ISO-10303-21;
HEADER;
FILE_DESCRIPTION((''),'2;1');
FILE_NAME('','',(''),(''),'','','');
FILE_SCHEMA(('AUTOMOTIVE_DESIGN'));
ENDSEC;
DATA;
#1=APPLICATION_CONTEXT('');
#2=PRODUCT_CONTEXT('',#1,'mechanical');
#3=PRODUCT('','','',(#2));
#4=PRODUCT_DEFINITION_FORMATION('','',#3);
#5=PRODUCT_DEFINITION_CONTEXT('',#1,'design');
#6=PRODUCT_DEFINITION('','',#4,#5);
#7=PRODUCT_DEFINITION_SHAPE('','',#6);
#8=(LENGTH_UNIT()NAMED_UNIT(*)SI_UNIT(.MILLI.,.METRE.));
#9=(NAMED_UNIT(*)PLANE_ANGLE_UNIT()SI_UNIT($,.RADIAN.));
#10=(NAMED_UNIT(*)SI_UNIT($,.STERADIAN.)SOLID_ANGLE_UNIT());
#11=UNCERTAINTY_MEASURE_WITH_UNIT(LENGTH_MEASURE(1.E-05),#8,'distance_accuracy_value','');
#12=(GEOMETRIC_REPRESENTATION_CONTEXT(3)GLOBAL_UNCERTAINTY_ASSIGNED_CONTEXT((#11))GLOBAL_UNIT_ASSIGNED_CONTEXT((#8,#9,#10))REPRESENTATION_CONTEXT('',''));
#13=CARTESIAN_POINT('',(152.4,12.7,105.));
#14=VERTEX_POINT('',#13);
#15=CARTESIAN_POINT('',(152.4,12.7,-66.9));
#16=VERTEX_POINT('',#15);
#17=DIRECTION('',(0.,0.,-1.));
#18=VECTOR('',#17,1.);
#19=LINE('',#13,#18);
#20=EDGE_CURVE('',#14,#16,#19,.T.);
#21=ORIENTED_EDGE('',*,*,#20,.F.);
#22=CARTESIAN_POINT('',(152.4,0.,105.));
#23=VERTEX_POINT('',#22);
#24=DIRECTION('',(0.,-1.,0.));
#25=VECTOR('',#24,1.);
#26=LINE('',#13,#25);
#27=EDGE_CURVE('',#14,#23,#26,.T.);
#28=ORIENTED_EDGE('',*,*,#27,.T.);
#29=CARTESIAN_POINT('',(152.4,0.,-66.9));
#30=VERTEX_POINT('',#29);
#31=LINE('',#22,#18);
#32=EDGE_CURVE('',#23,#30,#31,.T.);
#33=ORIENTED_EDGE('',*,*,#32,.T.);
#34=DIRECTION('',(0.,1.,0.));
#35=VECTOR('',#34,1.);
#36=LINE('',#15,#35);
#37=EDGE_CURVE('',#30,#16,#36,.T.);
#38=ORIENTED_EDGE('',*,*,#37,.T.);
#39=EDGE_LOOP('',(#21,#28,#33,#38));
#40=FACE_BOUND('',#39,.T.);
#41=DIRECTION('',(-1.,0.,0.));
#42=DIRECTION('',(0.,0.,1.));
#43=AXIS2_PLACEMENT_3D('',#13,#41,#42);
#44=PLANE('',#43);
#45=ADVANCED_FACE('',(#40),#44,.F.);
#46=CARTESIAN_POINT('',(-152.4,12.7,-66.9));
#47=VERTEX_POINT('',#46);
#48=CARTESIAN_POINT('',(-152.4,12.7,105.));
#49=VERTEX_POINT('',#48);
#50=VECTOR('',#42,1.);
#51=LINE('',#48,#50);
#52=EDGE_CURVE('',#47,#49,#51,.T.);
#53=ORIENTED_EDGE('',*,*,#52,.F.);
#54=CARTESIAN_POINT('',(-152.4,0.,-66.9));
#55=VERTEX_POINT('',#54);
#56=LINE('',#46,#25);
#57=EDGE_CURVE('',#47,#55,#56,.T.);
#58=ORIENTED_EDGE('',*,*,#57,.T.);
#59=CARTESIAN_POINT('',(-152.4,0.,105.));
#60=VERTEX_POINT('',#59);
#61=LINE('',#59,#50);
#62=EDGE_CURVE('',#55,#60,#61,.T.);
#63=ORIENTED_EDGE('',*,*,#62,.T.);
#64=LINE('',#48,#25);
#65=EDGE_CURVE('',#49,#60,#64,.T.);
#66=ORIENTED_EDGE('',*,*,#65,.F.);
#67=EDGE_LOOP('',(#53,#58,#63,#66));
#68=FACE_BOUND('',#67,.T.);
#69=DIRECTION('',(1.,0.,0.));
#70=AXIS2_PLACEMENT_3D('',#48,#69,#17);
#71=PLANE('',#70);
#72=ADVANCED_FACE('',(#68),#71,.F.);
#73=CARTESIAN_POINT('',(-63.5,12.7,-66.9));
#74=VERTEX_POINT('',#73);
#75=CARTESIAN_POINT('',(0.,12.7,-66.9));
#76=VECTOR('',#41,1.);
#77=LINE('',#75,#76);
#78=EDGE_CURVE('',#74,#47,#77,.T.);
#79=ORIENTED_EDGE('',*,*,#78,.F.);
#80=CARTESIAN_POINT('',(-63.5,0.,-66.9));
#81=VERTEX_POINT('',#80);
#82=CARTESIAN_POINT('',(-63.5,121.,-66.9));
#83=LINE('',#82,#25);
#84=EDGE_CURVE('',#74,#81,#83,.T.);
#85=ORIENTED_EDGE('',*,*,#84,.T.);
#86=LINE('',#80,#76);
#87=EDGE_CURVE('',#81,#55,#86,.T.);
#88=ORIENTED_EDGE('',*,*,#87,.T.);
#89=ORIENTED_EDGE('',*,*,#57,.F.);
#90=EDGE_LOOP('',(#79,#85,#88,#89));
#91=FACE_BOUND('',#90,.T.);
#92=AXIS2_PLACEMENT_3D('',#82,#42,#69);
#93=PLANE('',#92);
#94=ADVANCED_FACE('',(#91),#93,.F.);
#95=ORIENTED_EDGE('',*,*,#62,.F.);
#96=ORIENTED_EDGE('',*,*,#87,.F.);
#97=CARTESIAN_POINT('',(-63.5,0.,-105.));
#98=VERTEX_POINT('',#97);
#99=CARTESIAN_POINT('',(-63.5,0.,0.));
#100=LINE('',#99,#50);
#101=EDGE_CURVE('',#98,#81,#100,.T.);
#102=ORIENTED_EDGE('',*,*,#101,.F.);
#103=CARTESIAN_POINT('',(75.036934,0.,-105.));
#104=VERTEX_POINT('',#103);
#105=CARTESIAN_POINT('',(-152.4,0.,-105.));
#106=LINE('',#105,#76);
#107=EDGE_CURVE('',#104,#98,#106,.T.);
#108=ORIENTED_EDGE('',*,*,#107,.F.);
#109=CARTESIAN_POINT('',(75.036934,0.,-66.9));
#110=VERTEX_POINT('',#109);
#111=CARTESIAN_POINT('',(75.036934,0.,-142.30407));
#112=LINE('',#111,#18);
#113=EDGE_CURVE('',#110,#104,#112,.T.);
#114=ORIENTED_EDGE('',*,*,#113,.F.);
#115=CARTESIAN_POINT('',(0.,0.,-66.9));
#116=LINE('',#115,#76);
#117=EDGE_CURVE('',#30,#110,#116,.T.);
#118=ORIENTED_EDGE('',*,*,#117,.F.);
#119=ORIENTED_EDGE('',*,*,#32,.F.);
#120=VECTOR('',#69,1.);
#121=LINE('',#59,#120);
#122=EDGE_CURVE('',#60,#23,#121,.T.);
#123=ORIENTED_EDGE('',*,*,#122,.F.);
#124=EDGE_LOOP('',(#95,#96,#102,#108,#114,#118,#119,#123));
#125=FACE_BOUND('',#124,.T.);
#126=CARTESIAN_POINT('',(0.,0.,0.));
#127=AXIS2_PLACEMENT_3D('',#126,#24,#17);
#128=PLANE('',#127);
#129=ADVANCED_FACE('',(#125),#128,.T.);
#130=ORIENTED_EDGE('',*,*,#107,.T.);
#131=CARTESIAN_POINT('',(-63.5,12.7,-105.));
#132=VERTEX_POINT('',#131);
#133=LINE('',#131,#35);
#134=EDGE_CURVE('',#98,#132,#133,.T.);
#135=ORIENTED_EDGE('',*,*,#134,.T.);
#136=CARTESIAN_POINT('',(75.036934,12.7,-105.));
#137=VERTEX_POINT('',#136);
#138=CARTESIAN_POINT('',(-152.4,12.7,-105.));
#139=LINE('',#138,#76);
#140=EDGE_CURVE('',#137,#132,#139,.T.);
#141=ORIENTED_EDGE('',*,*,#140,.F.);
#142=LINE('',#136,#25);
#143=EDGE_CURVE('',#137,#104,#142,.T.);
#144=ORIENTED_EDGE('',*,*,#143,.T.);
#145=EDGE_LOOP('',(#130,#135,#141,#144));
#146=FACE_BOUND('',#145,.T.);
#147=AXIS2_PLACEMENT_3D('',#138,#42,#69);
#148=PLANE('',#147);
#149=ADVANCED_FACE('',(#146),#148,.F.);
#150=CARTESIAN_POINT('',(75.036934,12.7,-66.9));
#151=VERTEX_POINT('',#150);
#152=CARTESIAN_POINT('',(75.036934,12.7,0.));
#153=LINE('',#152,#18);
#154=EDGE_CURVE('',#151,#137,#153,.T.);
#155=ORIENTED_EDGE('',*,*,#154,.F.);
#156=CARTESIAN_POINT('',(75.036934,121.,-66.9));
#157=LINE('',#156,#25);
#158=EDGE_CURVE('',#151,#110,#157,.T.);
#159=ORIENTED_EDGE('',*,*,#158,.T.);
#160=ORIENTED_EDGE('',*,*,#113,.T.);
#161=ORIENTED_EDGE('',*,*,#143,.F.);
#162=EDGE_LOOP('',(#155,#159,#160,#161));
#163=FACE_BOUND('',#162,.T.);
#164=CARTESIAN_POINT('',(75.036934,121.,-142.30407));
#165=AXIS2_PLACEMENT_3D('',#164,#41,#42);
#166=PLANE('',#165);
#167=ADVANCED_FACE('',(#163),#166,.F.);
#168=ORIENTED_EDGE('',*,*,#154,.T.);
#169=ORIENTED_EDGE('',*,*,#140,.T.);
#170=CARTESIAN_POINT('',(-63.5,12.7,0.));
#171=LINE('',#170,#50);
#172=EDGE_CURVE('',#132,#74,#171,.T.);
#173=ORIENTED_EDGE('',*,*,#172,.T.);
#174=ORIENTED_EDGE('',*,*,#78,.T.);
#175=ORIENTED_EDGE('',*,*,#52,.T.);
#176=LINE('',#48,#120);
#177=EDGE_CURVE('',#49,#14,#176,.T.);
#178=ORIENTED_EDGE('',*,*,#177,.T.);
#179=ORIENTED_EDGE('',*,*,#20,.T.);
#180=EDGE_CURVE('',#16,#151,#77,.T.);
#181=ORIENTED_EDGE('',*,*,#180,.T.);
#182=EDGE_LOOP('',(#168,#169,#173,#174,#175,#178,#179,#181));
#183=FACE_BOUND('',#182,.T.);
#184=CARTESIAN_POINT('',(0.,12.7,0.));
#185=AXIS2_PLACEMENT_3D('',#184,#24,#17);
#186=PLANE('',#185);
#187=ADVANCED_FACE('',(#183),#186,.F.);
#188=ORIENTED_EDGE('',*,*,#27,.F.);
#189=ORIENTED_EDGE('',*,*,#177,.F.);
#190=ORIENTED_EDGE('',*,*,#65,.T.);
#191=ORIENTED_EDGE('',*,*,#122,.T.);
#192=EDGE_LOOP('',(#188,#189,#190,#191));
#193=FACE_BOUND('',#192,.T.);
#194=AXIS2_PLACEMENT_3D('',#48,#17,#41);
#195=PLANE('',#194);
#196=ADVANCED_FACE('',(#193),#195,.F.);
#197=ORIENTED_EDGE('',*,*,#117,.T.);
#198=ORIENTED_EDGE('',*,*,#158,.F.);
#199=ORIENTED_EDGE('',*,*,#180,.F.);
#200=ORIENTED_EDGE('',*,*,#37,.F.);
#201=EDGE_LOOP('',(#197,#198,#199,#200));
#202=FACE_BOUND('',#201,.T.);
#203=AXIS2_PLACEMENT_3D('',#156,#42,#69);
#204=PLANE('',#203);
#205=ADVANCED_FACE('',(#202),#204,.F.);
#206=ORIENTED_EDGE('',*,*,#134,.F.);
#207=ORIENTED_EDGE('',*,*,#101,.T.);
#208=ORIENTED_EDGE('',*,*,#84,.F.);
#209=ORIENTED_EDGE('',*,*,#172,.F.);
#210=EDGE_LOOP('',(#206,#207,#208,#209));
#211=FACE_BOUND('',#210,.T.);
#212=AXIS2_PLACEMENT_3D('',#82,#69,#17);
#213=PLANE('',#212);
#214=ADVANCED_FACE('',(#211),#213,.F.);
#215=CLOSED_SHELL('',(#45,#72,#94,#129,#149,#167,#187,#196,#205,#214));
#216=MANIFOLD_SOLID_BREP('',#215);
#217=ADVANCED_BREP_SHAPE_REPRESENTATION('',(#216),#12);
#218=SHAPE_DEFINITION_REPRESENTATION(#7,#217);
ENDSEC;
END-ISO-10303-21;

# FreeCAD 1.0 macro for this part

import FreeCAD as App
import Part
import Sketcher

doc = App.newDocument("Part")
body = doc.addObject("PartDesign::Body", "Body")

# Sketch on XZ plane
sketch1 = body.newObject("Sketcher::SketchObject", "Sketch")
sketch1.AttachmentSupport = (doc.getObject("XZ_Plane"), [""])
sketch1.MapMode = "FlatFace"
sketch1.addGeometry([
    Part.LineSegment(App.Vector(-152, -105, 0), App.Vector(-152, 105, 0)),
    Part.LineSegment(App.Vector(-152, 105, 0), App.Vector(152, 105, 0)),
    Part.LineSegment(App.Vector(152, 105, 0), App.Vector(152, -105, 0)),
    Part.LineSegment(App.Vector(152, -105, 0), App.Vector(-152, -105, 0)),
], False)
sketch1.addConstraint([
    Sketcher.Constraint("Coincident", 0, 2, 1, 1),
    Sketcher.Constraint("Coincident", 1, 2, 2, 1),
    Sketcher.Constraint("Coincident", 2, 2, 3, 1),
    Sketcher.Constraint("Coincident", 3, 2, 0, 1),
    Sketcher.Constraint("Vertical", 0),
    Sketcher.Constraint("Horizontal", 1),
    Sketcher.Constraint("Vertical", 2),
    Sketcher.Constraint("Horizontal", 3),
    Sketcher.Constraint("Symmetric", 0, 2, 2, 2, -1, 1),
    Sketcher.Constraint("DistanceY", 0, 1, 0, 2, 210.0),
    Sketcher.Constraint("DistanceX", 1, 1, 1, 2, 304.8),
])
pad1 = body.newObject("PartDesign::Pad", "Pad")
pad1.Profile = sketch1
pad1.Length = 12.7
pad1.Reversed = True

# Sketch on XZ plane
sketch2 = body.newObject("Sketcher::SketchObject", "Sketch001")
sketch2.AttachmentSupport = (doc.getObject("XZ_Plane"), [""])
sketch2.MapMode = "FlatFace"
sketch2.addGeometry([
    Part.LineSegment(App.Vector(-167, -67, 0), App.Vector(-167, -142, 0)),  # 0
    Part.LineSegment(App.Vector(-167, -142, 0), App.Vector(-64, -142, 0)),  # 1
    Part.LineSegment(App.Vector(-64, -142, 0), App.Vector(-64, -67, 0)),  # 2
    Part.LineSegment(App.Vector(-64, -67, 0), App.Vector(-167, -67, 0)),  # 3
    Part.LineSegment(App.Vector(75, -67, 0), App.Vector(75, -142, 0)),  # 4
    Part.LineSegment(App.Vector(75, -142, 0), App.Vector(181, -142, 0)),  # 5
    Part.LineSegment(App.Vector(181, -142, 0), App.Vector(181, -67, 0)),  # 6
    Part.LineSegment(App.Vector(181, -67, 0), App.Vector(75, -67, 0)),  # 7
], False)
sketch2.addConstraint([
    Sketcher.Constraint("Coincident", 0, 2, 1, 1),
    Sketcher.Constraint("Coincident", 1, 2, 2, 1),
    Sketcher.Constraint("Coincident", 2, 2, 3, 1),
    Sketcher.Constraint("Coincident", 3, 2, 0, 1),
    Sketcher.Constraint("Coincident", 4, 2, 5, 1),
    Sketcher.Constraint("Coincident", 5, 2, 6, 1),
    Sketcher.Constraint("Coincident", 6, 2, 7, 1),
    Sketcher.Constraint("Coincident", 7, 2, 4, 1),
    Sketcher.Constraint("Vertical", 0),
    Sketcher.Constraint("Horizontal", 1),
    Sketcher.Constraint("Vertical", 2),
    Sketcher.Constraint("Horizontal", 3),
    Sketcher.Constraint("Vertical", 4),
    Sketcher.Constraint("Horizontal", 5),
    Sketcher.Constraint("Vertical", 6),
    Sketcher.Constraint("Horizontal", 7),
    Sketcher.Constraint("Horizontal", 1, 2, 4, 2),
    Sketcher.Constraint("Horizontal", 3, 2, 6, 2),
    Sketcher.Constraint("DistanceX", 1, 2, -1, 1, 63.5),
    Sketcher.Constraint("DistanceY", 2, 2, -1, 1, 66.9),
    Sketcher.Constraint("DistanceX", 1, 1, 1, 2, 103.82614),
    Sketcher.Constraint("DistanceY", 0, 2, 0, 1, 75.40407),
    Sketcher.Constraint("DistanceX", 5, 1, 5, 2, 105.873975),
    Sketcher.Constraint("DistanceX", -1, 1, 5, 2, 180.910909),
])
pocket1 = body.newObject("PartDesign::Pocket", "Pocket")
pocket1.Profile = sketch2
pocket1.Length = 121

doc.recompute()
